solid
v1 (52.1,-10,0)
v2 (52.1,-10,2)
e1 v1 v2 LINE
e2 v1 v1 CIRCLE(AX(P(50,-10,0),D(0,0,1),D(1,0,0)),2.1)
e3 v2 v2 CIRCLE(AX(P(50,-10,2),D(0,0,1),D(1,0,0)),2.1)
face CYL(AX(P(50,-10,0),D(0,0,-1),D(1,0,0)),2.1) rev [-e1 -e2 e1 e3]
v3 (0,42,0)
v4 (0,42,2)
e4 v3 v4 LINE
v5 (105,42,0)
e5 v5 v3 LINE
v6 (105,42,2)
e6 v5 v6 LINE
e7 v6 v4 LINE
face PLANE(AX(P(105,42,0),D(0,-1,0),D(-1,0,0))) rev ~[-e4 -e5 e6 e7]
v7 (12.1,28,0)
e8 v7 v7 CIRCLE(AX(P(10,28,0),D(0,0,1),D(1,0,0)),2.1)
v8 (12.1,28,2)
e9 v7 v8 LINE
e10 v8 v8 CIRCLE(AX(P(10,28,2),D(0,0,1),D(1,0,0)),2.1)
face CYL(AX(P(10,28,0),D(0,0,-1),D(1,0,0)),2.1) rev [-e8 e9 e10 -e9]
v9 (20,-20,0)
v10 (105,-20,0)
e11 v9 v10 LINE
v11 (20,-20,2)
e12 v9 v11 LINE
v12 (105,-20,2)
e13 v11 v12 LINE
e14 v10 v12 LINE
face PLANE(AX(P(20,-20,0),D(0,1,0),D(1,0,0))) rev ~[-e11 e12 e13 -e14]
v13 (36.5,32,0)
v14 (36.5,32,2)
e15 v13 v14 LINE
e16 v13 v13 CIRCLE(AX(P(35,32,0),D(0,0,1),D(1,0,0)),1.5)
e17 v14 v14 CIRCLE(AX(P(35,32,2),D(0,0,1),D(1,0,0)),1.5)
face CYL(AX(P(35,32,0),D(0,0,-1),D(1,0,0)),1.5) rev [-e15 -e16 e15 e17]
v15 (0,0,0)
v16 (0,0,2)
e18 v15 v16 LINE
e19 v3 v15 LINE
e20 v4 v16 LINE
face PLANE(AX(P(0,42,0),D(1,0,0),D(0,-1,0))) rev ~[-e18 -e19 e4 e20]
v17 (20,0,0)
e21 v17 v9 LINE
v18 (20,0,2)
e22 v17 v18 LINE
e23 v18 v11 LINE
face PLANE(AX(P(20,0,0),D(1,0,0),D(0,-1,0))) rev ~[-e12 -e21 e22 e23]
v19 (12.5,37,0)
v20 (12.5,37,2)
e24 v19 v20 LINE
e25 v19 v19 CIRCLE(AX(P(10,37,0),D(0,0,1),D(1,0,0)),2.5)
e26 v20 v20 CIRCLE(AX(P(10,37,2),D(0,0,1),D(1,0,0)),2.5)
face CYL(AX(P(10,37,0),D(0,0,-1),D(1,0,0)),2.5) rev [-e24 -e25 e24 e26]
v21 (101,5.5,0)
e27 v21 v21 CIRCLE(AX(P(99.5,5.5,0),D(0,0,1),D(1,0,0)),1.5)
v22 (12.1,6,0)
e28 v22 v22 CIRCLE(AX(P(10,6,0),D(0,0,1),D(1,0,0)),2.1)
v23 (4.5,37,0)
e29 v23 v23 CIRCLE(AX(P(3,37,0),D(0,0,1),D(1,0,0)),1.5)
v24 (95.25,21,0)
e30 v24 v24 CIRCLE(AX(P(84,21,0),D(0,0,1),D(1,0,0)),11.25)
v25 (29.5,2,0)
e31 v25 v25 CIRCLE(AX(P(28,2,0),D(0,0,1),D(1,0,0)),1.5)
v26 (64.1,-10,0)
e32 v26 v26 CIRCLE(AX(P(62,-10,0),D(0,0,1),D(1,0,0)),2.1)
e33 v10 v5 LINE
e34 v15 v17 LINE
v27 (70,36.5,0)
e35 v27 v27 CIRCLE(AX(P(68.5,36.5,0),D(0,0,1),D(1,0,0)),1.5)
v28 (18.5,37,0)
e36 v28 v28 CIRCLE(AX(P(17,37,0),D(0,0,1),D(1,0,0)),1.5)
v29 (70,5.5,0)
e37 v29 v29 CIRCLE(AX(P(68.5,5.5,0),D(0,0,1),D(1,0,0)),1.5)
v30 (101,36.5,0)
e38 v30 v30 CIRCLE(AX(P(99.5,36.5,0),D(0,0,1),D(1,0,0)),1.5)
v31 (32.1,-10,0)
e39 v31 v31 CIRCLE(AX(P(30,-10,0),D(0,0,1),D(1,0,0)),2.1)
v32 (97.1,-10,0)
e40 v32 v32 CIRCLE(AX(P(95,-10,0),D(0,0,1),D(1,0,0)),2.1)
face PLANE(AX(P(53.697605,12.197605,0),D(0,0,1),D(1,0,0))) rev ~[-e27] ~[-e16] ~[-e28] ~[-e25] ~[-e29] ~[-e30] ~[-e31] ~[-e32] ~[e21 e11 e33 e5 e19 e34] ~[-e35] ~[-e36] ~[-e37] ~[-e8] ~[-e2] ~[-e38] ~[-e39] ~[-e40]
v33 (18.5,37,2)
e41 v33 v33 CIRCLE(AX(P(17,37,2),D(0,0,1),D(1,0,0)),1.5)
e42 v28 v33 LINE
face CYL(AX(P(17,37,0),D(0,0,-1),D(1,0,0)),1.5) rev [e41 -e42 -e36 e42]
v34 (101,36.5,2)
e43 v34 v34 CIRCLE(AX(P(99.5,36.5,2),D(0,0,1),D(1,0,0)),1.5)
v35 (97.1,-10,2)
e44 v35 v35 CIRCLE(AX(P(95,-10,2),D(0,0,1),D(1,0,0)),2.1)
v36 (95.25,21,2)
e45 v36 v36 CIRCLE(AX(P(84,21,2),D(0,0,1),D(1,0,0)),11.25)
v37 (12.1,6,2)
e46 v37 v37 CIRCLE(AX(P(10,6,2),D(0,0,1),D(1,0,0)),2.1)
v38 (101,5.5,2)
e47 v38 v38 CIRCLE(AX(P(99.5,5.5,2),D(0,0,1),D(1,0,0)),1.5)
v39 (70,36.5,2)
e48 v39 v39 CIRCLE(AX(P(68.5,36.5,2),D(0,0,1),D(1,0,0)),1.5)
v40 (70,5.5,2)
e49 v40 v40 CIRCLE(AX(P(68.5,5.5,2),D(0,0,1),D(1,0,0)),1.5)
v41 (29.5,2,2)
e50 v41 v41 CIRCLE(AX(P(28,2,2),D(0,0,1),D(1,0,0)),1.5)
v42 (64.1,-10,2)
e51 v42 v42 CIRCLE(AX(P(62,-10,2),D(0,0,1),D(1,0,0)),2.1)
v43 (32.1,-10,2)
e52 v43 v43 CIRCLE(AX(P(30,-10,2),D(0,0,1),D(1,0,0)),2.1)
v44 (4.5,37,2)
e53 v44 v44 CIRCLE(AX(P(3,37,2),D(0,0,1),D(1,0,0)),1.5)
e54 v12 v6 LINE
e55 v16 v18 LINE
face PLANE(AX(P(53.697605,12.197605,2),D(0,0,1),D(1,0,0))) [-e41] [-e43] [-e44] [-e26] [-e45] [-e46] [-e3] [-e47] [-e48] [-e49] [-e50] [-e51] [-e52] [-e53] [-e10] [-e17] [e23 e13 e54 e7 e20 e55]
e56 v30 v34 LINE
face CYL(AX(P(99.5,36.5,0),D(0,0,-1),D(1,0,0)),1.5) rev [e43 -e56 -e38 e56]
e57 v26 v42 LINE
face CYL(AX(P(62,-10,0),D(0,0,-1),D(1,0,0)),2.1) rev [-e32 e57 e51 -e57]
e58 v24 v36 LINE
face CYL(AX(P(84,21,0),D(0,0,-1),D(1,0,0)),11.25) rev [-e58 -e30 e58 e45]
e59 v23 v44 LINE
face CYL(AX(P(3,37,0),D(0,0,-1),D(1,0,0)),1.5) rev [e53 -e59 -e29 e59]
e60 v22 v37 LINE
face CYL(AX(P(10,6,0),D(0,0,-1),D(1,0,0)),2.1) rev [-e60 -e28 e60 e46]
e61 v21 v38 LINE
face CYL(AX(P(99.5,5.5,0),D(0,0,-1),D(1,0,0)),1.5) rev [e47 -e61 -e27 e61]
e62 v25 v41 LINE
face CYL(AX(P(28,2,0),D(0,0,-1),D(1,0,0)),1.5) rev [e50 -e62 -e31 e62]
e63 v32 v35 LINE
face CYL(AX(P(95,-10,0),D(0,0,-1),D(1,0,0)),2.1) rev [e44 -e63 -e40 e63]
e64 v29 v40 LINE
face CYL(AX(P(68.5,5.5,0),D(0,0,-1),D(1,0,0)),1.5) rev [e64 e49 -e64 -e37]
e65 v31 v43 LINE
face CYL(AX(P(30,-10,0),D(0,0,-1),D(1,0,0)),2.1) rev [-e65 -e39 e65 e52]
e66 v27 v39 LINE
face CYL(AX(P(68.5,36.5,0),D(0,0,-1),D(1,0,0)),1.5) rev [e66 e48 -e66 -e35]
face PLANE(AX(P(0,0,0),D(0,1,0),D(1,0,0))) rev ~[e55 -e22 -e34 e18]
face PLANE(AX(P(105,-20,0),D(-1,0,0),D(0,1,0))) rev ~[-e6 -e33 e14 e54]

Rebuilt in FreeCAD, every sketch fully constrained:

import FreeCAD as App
import Part
import Sketcher
Q = App.Units.Quantity


def add_polygon(sketch, points):
    """Adds a closed chain of lines whose ends are joined by coincident constraints."""
    first, n = sketch.GeometryCount, len(points)
    for a, b in zip(points, points[1:] + points[:1]):
        sketch.addGeometry(Part.LineSegment(App.Vector(*a, 0), App.Vector(*b, 0)), False)
    for i in range(n):
        sketch.addConstraint(Sketcher.Constraint("Coincident", first + i, 2, first + (i + 1) % n, 1))

doc = App.newDocument("Part")
body = doc.addObject("PartDesign::Body", "Body")

# Sketch on XY plane
sketch1 = body.newObject("Sketcher::SketchObject", "Sketch")
sketch1.AttachmentSupport = (doc.getObject("XY_Plane"), [""])
sketch1.MapMode = "FlatFace"
add_polygon(sketch1, [(0, 0), (20, 0), (20, -20), (105, -20), (105, 42), (0, 42)])  # lines 0-5
sketch1.addGeometry(Part.Circle(App.Vector(30, -10, 0), App.Vector(0, 0, 1), 2.1), False)  # 6
sketch1.addGeometry(Part.Circle(App.Vector(50, -10, 0), App.Vector(0, 0, 1), 2.1), False)  # 7
sketch1.addGeometry(Part.Circle(App.Vector(10, 6, 0), App.Vector(0, 0, 1), 2.1), False)  # 8
sketch1.addGeometry(Part.Circle(App.Vector(28, 2, 0), App.Vector(0, 0, 1), 1.5), False)  # 9
sketch1.addGeometry(Part.Circle(App.Vector(62, -10, 0), App.Vector(0, 0, 1), 2.1), False)  # 10
sketch1.addGeometry(Part.Circle(App.Vector(95, -10, 0), App.Vector(0, 0, 1), 2.1), False)  # 11
sketch1.addGeometry(Part.Circle(App.Vector(68.5, 5.5, 0), App.Vector(0, 0, 1), 1.5), False)  # 12
sketch1.addGeometry(Part.Circle(App.Vector(99.5, 5.5, 0), App.Vector(0, 0, 1), 1.5), False)  # 13
sketch1.addGeometry(Part.Circle(App.Vector(10, 28, 0), App.Vector(0, 0, 1), 2.1), False)  # 14
sketch1.addGeometry(Part.Circle(App.Vector(3, 37, 0), App.Vector(0, 0, 1), 1.5), False)  # 15
sketch1.addGeometry(Part.Circle(App.Vector(10, 37, 0), App.Vector(0, 0, 1), 2.5), False)  # 16
sketch1.addGeometry(Part.Circle(App.Vector(17, 37, 0), App.Vector(0, 0, 1), 1.5), False)  # 17
sketch1.addGeometry(Part.Circle(App.Vector(35, 32, 0), App.Vector(0, 0, 1), 1.5), False)  # 18
sketch1.addGeometry(Part.Circle(App.Vector(84, 21, 0), App.Vector(0, 0, 1), 11.2), False)  # 19
sketch1.addGeometry(Part.Circle(App.Vector(68.5, 36.5, 0), App.Vector(0, 0, 1), 1.5), False)  # 20
sketch1.addGeometry(Part.Circle(App.Vector(99.5, 36.5, 0), App.Vector(0, 0, 1), 1.5), False)  # 21
sketch1.addConstraint(Sketcher.Constraint("Horizontal", 0))
sketch1.addConstraint(Sketcher.Constraint("Vertical", 1))
sketch1.addConstraint(Sketcher.Constraint("Horizontal", 2))
sketch1.addConstraint(Sketcher.Constraint("Vertical", 3))
sketch1.addConstraint(Sketcher.Constraint("Horizontal", 4))
sketch1.addConstraint(Sketcher.Constraint("Vertical", 5))
sketch1.addConstraint(Sketcher.Constraint("Coincident", 5, 2, -1, 1))
sketch1.addConstraint(Sketcher.Constraint("Equal", 6, 7))
sketch1.addConstraint(Sketcher.Constraint("Equal", 7, 8))
sketch1.addConstraint(Sketcher.Constraint("Equal", 8, 10))
sketch1.addConstraint(Sketcher.Constraint("Equal", 10, 11))
sketch1.addConstraint(Sketcher.Constraint("Equal", 9, 12))
sketch1.addConstraint(Sketcher.Constraint("Equal", 12, 13))
sketch1.addConstraint(Sketcher.Constraint("Equal", 11, 14))
sketch1.addConstraint(Sketcher.Constraint("Equal", 13, 15))
sketch1.addConstraint(Sketcher.Constraint("Equal", 15, 17))
sketch1.addConstraint(Sketcher.Constraint("Equal", 17, 18))
sketch1.addConstraint(Sketcher.Constraint("Equal", 18, 20))
sketch1.addConstraint(Sketcher.Constraint("Equal", 20, 21))
sketch1.addConstraint(Sketcher.Constraint("Horizontal", 6, 3, 7, 3))
sketch1.addConstraint(Sketcher.Constraint("Horizontal", 7, 3, 10, 3))
sketch1.addConstraint(Sketcher.Constraint("Horizontal", 10, 3, 11, 3))
sketch1.addConstraint(Sketcher.Constraint("Horizontal", 12, 3, 13, 3))
sketch1.addConstraint(Sketcher.Constraint("Horizontal", 15, 3, 16, 3))
sketch1.addConstraint(Sketcher.Constraint("Horizontal", 16, 3, 17, 3))
sketch1.addConstraint(Sketcher.Constraint("Horizontal", 20, 3, 21, 3))
sketch1.addConstraint(Sketcher.Constraint("Vertical", 8, 3, 14, 3))
sketch1.addConstraint(Sketcher.Constraint("Vertical", 14, 3, 16, 3))
sketch1.addConstraint(Sketcher.Constraint("Vertical", 12, 3, 20, 3))
sketch1.addConstraint(Sketcher.Constraint("Vertical", 13, 3, 21, 3))
sketch1.addConstraint(Sketcher.Constraint("Equal", 0, 1))
sketch1.addConstraint(Sketcher.Constraint("Diameter", 9, Q("3 mm")))
sketch1.addConstraint(Sketcher.Constraint("Diameter", 16, Q("5 mm")))
sketch1.addConstraint(Sketcher.Constraint("Diameter", 6, Q("4.2 mm")))
sketch1.addConstraint(Sketcher.Constraint("Diameter", 19, Q("22.5 mm")))
sketch1.addConstraint(Sketcher.Constraint("DistanceX", 0, 1, 0, 2, Q("20 mm")))
sketch1.addConstraint(Sketcher.Constraint("DistanceX", 2, 1, 2, 2, Q("85 mm")))
sketch1.addConstraint(Sketcher.Constraint("DistanceY", 3, 1, 3, 2, Q("62 mm")))
sketch1.addConstraint(Sketcher.Constraint("DistanceX", -1, 1, 6, 3, Q("30 mm")))
sketch1.addConstraint(Sketcher.Constraint("DistanceY", 6, 3, -1, 1, Q("10 mm")))
sketch1.addConstraint(Sketcher.Constraint("DistanceX", -1, 1, 7, 3, Q("50 mm")))
sketch1.addConstraint(Sketcher.Constraint("DistanceX", -1, 1, 8, 3, Q("10 mm")))
sketch1.addConstraint(Sketcher.Constraint("DistanceY", -1, 1, 8, 3, Q("6 mm")))
sketch1.addConstraint(Sketcher.Constraint("DistanceX", -1, 1, 9, 3, Q("28 mm")))
sketch1.addConstraint(Sketcher.Constraint("DistanceY", -1, 1, 9, 3, Q("2 mm")))
sketch1.addConstraint(Sketcher.Constraint("DistanceX", -1, 1, 10, 3, Q("62 mm")))
sketch1.addConstraint(Sketcher.Constraint("DistanceX", -1, 1, 11, 3, Q("95 mm")))
sketch1.addConstraint(Sketcher.Constraint("DistanceY", -1, 1, 14, 3, Q("28 mm")))
sketch1.addConstraint(Sketcher.Constraint("DistanceX", -1, 1, 15, 3, Q("3 mm")))
sketch1.addConstraint(Sketcher.Constraint("DistanceY", -1, 1, 15, 3, Q("37 mm")))
sketch1.addConstraint(Sketcher.Constraint("DistanceX", -1, 1, 17, 3, Q("17 mm")))
sketch1.addConstraint(Sketcher.Constraint("DistanceX", -1, 1, 18, 3, Q("35 mm")))
sketch1.addConstraint(Sketcher.Constraint("DistanceY", -1, 1, 18, 3, Q("32 mm")))
sketch1.addConstraint(Sketcher.Constraint("DistanceX", -1, 1, 19, 3, Q("84 mm")))
sketch1.addConstraint(Sketcher.Constraint("DistanceY", -1, 1, 19, 3, Q("21 mm")))
sketch1.addConstraint(Sketcher.Constraint("DistanceX", 12, 3, 13, 3, Q("31 mm")))
sketch1.addConstraint(Sketcher.Constraint("DistanceY", 12, 3, 20, 3, Q("31 mm")))
sketch1.addConstraint(Sketcher.Constraint("DistanceX", -1, 1, 12, 3, Q("68.5 mm")))
sketch1.addConstraint(Sketcher.Constraint("DistanceY", -1, 1, 12, 3, Q("5.5 mm")))
pad1 = body.newObject("PartDesign::Pad", "Pad")
pad1.Profile = sketch1
pad1.Length = 2

doc.recompute()
